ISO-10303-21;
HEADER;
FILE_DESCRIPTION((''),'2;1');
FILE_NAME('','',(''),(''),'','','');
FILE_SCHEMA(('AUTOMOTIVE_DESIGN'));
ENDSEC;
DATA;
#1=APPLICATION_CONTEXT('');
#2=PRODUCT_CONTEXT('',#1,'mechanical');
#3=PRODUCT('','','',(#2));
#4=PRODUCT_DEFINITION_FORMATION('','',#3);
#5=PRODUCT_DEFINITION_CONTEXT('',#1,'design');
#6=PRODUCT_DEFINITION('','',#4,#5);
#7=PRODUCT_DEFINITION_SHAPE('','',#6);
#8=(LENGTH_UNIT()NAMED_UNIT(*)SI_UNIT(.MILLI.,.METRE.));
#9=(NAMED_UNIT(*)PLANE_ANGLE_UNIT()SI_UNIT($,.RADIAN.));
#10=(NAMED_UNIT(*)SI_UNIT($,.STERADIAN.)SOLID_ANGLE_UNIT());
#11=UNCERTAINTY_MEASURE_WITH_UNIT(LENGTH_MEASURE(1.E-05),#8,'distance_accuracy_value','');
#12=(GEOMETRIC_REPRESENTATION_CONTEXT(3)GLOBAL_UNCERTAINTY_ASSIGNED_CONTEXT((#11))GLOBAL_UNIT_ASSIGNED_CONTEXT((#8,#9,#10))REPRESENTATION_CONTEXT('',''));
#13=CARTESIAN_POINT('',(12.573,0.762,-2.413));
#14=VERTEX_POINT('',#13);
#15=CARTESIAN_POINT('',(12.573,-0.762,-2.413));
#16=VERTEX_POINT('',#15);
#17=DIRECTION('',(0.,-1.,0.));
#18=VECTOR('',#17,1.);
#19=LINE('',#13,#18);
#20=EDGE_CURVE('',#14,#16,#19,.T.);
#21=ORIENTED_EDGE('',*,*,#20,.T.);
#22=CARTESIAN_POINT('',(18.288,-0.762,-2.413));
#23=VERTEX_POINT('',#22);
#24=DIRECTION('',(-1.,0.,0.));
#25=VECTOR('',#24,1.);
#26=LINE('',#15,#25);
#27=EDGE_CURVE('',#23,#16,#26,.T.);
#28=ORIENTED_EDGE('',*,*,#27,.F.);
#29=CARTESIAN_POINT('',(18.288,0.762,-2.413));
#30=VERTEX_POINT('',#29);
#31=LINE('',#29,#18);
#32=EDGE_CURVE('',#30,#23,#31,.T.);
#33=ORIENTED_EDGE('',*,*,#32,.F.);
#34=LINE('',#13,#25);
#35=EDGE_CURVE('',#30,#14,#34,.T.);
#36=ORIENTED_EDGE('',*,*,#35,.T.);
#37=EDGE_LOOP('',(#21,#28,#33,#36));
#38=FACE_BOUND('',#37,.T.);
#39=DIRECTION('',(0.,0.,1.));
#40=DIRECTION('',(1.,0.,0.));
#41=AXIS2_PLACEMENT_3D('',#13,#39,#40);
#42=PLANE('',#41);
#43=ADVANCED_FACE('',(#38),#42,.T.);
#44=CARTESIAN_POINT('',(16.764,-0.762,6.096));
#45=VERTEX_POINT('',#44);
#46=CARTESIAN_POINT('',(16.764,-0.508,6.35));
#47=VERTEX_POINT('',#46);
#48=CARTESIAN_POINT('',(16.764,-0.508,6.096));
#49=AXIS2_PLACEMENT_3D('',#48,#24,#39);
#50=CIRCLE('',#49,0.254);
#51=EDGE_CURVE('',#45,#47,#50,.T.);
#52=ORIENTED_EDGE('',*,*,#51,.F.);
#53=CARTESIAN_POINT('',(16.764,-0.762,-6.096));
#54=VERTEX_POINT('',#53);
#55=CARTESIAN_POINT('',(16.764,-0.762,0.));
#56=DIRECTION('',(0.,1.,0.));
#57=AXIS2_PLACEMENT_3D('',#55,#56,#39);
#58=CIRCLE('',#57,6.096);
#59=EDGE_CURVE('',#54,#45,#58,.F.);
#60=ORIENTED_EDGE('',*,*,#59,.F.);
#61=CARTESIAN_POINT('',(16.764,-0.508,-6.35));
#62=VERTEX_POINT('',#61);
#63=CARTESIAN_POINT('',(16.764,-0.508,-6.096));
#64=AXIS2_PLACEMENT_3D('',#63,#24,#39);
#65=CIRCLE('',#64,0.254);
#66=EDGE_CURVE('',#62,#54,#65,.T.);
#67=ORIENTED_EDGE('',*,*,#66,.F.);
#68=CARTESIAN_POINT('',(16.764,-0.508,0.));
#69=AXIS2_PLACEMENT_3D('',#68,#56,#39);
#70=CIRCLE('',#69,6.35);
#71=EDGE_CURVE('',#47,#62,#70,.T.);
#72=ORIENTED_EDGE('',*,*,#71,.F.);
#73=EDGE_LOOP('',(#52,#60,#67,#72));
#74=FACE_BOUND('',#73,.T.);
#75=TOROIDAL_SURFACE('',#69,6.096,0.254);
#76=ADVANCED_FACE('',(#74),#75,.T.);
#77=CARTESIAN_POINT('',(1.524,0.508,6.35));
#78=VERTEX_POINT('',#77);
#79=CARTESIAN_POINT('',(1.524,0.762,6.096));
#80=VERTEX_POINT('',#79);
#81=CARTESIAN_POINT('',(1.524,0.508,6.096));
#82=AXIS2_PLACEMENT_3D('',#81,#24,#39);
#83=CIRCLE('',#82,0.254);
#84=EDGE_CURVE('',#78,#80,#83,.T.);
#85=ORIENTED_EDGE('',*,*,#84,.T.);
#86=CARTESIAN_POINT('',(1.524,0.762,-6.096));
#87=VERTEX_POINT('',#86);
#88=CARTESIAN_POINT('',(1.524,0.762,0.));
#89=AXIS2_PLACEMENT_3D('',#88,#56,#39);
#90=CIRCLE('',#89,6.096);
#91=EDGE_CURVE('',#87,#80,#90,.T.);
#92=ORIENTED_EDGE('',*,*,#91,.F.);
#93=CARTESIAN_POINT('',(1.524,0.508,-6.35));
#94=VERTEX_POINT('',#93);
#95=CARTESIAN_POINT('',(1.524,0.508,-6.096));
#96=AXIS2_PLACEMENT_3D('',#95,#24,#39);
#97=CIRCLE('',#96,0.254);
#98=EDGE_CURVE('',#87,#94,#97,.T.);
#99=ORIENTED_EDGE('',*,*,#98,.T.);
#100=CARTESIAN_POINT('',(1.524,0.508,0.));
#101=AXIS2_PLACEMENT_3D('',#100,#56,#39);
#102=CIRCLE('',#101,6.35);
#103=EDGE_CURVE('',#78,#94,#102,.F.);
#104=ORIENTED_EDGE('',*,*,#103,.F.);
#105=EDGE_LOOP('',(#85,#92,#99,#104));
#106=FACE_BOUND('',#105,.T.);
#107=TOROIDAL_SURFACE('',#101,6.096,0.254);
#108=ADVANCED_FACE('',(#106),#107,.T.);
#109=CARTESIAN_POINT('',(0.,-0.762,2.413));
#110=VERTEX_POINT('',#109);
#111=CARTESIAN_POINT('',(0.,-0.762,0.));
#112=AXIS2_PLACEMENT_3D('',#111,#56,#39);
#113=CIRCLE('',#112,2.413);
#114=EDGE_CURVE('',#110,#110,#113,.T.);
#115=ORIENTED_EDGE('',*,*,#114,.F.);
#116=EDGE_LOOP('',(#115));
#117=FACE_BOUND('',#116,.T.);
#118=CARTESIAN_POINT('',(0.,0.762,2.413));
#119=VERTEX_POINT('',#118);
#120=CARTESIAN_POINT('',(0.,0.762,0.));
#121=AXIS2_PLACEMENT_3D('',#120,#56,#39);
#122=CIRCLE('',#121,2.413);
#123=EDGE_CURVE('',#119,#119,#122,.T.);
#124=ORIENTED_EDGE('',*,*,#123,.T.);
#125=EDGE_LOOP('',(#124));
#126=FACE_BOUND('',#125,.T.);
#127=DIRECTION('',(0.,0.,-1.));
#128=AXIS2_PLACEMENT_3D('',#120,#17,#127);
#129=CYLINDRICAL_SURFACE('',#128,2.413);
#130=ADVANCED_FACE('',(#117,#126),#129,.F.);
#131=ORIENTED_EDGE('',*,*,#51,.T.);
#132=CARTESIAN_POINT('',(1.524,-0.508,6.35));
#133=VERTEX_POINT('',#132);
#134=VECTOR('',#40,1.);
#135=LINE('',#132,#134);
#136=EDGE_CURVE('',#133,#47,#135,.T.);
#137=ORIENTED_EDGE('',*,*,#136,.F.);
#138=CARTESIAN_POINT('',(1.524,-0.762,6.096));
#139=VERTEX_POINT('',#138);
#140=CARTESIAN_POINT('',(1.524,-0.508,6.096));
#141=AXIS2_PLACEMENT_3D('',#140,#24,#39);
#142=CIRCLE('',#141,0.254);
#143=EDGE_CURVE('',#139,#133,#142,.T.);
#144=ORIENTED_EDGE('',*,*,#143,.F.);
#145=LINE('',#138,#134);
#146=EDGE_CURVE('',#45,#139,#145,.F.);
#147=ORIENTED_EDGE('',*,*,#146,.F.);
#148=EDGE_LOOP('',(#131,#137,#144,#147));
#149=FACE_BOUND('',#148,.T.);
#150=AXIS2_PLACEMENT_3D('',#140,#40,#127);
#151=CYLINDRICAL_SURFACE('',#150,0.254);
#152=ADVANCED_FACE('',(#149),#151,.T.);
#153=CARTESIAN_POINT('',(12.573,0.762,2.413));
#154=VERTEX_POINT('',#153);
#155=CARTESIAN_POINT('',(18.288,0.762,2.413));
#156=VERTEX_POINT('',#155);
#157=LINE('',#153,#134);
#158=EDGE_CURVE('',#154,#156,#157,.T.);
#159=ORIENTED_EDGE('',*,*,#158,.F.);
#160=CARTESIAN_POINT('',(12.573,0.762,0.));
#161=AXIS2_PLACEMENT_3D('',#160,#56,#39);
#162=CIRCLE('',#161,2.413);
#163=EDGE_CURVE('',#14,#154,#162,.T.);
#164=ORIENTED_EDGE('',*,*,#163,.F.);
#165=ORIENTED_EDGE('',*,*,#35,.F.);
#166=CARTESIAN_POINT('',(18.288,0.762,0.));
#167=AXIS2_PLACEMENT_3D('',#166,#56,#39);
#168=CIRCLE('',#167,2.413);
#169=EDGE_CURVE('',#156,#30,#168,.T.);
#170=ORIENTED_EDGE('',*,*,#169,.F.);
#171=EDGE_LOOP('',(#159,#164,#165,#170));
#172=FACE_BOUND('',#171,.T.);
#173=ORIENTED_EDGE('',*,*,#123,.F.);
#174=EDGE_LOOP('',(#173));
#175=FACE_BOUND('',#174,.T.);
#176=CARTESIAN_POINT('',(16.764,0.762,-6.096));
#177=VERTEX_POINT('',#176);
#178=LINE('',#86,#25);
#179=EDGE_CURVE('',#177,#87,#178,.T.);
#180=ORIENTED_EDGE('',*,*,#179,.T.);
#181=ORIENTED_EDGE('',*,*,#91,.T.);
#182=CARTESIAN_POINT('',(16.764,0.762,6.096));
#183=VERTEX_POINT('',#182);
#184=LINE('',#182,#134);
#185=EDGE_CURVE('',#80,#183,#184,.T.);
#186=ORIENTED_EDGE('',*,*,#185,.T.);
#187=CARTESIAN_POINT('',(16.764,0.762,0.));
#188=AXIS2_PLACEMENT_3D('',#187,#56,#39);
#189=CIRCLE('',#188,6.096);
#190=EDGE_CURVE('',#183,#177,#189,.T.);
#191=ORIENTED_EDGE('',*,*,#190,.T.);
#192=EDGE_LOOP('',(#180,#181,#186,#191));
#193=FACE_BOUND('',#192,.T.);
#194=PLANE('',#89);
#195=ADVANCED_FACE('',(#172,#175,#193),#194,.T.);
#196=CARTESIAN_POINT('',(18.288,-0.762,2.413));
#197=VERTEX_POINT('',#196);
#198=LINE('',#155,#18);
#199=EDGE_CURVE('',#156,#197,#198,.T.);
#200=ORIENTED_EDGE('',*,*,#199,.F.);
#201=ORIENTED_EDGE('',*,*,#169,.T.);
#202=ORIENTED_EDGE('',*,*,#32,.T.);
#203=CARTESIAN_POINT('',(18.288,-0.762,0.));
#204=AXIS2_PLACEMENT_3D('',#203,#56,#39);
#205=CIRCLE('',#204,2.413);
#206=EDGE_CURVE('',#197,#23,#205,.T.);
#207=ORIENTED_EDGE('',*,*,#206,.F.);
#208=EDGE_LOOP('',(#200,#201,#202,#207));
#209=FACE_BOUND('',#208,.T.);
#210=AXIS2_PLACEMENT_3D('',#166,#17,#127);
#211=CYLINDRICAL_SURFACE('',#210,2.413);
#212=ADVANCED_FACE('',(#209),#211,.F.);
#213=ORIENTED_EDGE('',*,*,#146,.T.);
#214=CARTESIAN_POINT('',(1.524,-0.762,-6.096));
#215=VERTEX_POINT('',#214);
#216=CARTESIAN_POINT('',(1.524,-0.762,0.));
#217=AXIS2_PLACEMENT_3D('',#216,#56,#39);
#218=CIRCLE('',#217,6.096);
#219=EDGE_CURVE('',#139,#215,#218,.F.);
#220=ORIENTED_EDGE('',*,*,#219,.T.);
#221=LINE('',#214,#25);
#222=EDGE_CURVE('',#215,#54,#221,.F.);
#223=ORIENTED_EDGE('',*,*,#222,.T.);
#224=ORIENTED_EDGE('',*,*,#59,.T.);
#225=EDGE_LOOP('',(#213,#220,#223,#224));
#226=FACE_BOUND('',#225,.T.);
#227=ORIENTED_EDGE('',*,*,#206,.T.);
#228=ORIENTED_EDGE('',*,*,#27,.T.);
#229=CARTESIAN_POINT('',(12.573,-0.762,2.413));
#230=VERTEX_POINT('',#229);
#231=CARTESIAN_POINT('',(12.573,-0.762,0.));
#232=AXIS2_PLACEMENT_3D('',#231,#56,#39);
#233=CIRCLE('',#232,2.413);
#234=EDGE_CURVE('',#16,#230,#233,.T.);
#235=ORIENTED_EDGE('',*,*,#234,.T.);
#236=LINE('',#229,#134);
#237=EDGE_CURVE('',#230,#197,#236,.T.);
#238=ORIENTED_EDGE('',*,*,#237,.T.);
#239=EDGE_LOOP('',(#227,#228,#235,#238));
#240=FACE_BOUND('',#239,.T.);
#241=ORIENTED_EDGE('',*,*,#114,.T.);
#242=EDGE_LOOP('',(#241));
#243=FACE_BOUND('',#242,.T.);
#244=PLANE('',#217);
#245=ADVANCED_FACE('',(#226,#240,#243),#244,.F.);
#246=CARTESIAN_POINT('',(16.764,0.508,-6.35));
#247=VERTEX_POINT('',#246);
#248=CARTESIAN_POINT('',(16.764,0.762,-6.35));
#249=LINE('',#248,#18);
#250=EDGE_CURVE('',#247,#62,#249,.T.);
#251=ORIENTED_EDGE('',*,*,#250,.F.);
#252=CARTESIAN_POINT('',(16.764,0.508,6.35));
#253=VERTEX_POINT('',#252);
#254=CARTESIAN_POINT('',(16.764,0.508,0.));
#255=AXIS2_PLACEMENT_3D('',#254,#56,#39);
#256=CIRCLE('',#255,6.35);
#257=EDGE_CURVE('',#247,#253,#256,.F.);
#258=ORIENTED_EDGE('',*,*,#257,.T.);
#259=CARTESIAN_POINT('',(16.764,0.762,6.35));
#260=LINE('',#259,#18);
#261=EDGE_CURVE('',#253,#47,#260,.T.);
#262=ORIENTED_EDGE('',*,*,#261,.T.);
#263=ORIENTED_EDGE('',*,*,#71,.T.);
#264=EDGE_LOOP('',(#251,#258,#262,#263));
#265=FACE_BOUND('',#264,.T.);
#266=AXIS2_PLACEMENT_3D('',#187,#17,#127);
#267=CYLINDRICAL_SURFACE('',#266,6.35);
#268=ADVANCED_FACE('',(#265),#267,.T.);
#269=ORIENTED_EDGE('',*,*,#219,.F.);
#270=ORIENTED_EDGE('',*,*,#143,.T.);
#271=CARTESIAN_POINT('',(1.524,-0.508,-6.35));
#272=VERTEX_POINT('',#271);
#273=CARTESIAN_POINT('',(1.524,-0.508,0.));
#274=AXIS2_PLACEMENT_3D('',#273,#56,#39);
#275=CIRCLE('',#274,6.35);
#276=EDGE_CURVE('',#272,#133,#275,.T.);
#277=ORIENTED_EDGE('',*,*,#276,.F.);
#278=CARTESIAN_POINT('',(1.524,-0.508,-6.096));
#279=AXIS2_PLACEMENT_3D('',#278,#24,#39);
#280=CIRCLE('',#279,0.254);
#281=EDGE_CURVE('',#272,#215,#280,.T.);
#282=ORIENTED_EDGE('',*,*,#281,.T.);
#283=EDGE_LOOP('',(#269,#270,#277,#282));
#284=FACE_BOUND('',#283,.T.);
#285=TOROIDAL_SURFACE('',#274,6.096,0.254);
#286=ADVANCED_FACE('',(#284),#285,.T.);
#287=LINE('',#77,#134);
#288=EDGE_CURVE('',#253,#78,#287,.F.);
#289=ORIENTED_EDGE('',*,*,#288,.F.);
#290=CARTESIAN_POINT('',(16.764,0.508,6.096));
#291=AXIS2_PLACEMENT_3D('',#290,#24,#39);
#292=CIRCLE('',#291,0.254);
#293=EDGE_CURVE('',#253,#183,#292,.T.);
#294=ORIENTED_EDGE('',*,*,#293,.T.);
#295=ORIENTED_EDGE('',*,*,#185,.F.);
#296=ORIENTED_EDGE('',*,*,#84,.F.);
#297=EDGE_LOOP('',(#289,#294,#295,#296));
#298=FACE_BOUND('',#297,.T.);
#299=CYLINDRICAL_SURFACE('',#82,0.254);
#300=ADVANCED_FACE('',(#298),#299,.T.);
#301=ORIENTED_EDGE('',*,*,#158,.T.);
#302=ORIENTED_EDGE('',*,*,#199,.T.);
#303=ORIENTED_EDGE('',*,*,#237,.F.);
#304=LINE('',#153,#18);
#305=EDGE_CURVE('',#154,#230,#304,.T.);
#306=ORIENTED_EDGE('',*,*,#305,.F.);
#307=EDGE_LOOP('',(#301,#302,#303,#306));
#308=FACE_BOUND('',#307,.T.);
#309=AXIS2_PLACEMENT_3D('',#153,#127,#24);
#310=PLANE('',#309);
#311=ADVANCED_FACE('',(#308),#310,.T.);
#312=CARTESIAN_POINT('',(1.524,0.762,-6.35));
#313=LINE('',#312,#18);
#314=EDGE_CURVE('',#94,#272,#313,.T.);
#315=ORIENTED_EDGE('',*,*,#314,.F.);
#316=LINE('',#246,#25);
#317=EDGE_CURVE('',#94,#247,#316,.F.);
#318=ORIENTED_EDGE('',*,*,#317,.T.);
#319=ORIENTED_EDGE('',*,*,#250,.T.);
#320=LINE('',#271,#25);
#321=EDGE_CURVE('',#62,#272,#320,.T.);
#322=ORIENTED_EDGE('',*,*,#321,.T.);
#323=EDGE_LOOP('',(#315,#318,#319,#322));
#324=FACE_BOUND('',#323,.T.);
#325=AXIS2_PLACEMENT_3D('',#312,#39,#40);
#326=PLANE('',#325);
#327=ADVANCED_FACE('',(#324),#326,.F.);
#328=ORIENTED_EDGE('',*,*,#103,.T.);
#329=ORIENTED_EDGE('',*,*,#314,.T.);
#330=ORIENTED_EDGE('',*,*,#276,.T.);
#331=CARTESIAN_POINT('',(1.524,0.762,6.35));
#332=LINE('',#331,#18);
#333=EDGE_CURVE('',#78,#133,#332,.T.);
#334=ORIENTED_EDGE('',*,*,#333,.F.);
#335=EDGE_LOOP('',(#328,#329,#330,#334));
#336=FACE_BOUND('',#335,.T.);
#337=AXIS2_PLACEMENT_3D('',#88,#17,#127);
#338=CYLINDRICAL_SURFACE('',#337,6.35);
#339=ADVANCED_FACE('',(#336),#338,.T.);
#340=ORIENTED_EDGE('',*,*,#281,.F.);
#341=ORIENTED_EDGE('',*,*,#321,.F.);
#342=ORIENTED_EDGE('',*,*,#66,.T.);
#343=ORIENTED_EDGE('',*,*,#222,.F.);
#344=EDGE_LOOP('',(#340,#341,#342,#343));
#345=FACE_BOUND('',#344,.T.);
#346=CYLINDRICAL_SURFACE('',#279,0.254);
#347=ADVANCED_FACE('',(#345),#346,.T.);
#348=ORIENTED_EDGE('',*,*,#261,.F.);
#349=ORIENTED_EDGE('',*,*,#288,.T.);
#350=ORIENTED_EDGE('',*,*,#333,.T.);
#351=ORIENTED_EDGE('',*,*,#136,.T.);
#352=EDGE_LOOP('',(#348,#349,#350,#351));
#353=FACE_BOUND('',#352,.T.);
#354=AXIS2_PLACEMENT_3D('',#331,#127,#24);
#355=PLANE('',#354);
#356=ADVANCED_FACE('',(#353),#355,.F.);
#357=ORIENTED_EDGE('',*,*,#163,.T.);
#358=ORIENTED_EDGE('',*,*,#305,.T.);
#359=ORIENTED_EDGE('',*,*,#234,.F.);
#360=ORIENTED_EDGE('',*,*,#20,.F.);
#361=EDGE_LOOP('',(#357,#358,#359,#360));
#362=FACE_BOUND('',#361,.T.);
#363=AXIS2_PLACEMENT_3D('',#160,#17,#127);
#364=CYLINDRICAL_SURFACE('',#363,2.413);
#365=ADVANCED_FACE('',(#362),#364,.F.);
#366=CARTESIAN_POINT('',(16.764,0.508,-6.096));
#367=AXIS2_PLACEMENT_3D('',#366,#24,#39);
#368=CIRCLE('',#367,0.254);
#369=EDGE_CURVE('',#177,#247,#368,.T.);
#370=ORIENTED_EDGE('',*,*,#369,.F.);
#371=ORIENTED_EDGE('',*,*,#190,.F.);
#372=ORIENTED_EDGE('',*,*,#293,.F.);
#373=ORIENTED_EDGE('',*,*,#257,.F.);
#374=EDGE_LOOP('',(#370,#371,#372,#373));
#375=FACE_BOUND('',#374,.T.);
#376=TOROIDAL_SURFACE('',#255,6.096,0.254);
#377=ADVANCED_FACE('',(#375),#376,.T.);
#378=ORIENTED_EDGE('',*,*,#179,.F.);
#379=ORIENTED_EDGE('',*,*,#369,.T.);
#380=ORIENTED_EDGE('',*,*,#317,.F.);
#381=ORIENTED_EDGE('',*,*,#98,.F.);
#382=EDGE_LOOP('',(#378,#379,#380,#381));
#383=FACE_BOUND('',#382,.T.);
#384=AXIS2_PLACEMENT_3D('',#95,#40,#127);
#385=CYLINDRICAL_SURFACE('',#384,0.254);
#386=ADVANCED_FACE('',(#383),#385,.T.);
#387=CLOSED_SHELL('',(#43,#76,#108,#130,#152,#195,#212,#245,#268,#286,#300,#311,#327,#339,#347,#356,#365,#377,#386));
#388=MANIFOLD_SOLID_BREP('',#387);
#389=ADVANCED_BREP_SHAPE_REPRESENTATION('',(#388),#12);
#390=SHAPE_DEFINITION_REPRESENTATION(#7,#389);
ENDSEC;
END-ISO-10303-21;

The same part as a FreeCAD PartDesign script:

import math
import FreeCAD as App
import Part
import Sketcher
Q = App.Units.Quantity


def edges_at(feature, points):
    """Names of the edges that pass closest to the given points."""
    edges = feature.Shape.Edges
    near = lambda p: min(range(len(edges)), key=lambda i: edges[i].distToShape(Part.Vertex(*p))[0])
    return sorted({f"Edge{near(p) + 1}" for p in points})

doc = App.newDocument("Part")
body = doc.addObject("PartDesign::Body", "Body")

# Sketch on XZ plane
sketch1 = body.newObject("Sketcher::SketchObject", "Sketch")
sketch1.AttachmentSupport = (doc.getObject("XZ_Plane"), [""])
sketch1.MapMode = "FlatFace"
sketch1.addGeometry(Part.LineSegment(App.Vector(1.524, 6.35, 0), App.Vector(16.764, 6.35, 0)), False)
sketch1.addGeometry(Part.ArcOfCircle(Part.Circle(App.Vector(16.764, 0, 0), App.Vector(0, 0, 1), 6.35), math.radians(-90), math.radians(90)), False)
sketch1.addGeometry(Part.LineSegment(App.Vector(16.764, -6.35, 0), App.Vector(1.524, -6.35, 0)), False)
sketch1.addGeometry(Part.ArcOfCircle(Part.Circle(App.Vector(1.524, 0, 0), App.Vector(0, 0, 1), 6.35), math.radians(90), math.radians(270)), False)
sketch1.addGeometry(Part.Circle(App.Vector(0, 0, 0), App.Vector(0, 0, 1), 2.413), False)
sketch1.addGeometry(Part.ArcOfCircle(Part.Circle(App.Vector(12.573, 0, 0), App.Vector(0, 0, 1), 2.413), math.radians(90), math.radians(270)), False)
sketch1.addGeometry(Part.LineSegment(App.Vector(12.573, -2.413, 0), App.Vector(18.288, -2.413, 0)), False)
sketch1.addGeometry(Part.ArcOfCircle(Part.Circle(App.Vector(18.288, 0, 0), App.Vector(0, 0, 1), 2.413), math.radians(-90), math.radians(90)), False)
sketch1.addGeometry(Part.LineSegment(App.Vector(18.288, 2.413, 0), App.Vector(12.573, 2.413, 0)), False)
sketch1.addConstraint(Sketcher.Constraint("Tangent", 0, 2, 1, 2))
sketch1.addConstraint(Sketcher.Constraint("Tangent", 1, 1, 2, 1))
sketch1.addConstraint(Sketcher.Constraint("Tangent", 2, 2, 3, 2))
sketch1.addConstraint(Sketcher.Constraint("Tangent", 3, 1, 0, 1))
sketch1.addConstraint(Sketcher.Constraint("Tangent", 5, 2, 6, 1))
sketch1.addConstraint(Sketcher.Constraint("Tangent", 6, 2, 7, 1))
sketch1.addConstraint(Sketcher.Constraint("Tangent", 7, 2, 8, 1))
sketch1.addConstraint(Sketcher.Constraint("Tangent", 8, 2, 5, 1))
sketch1.addConstraint(Sketcher.Constraint("Horizontal", 0))
sketch1.addConstraint(Sketcher.Constraint("Horizontal", 2))
sketch1.addConstraint(Sketcher.Constraint("Horizontal", 6))
sketch1.addConstraint(Sketcher.Constraint("Horizontal", 8))
sketch1.addConstraint(Sketcher.Constraint("Coincident", 4, 3, -1, 1))
sketch1.addConstraint(Sketcher.Constraint("Equal", 4, 5))
sketch1.addConstraint(Sketcher.Constraint("PointOnObject", 1, 3, -1))
sketch1.addConstraint(Sketcher.Constraint("PointOnObject", 5, 3, -1))
sketch1.addConstraint(Sketcher.Constraint("Diameter", 4, Q("0.19 in")))
sketch1.addConstraint(Sketcher.Constraint("Radius", 1, Q("0.25 in")))
sketch1.addConstraint(Sketcher.Constraint("DistanceX", 0, 1, 0, 2, Q("0.6 in")))
sketch1.addConstraint(Sketcher.Constraint("DistanceX", 6, 1, 6, 2, Q("0.225 in")))
sketch1.addConstraint(Sketcher.Constraint("DistanceX", -1, 1, 1, 3, Q("0.66 in")))
sketch1.addConstraint(Sketcher.Constraint("DistanceX", -1, 1, 7, 3, Q("0.72 in")))
pad1 = body.newObject("PartDesign::Pad", "Pad")
pad1.Profile = sketch1
pad1.Length = Q("0.06 in")
pad1.Midplane = True
doc.recompute()

fillet = body.newObject("PartDesign::Fillet", "Fillet")
fillet.Base = (pad1, edges_at(pad1, [
    (23.114, 0.762, 0),
    (9.144, 0.762, -6.35),
    (-4.826, 0.762, 0),
    (9.144, -0.762, -6.35),
    (23.114, -0.762, 0),
    (9.144, -0.762, 6.35),
    (-4.826, -0.762, 0),
    (9.144, 0.762, 6.35),
]))
fillet.Radius = Q("0.01 in")

doc.recompute()
